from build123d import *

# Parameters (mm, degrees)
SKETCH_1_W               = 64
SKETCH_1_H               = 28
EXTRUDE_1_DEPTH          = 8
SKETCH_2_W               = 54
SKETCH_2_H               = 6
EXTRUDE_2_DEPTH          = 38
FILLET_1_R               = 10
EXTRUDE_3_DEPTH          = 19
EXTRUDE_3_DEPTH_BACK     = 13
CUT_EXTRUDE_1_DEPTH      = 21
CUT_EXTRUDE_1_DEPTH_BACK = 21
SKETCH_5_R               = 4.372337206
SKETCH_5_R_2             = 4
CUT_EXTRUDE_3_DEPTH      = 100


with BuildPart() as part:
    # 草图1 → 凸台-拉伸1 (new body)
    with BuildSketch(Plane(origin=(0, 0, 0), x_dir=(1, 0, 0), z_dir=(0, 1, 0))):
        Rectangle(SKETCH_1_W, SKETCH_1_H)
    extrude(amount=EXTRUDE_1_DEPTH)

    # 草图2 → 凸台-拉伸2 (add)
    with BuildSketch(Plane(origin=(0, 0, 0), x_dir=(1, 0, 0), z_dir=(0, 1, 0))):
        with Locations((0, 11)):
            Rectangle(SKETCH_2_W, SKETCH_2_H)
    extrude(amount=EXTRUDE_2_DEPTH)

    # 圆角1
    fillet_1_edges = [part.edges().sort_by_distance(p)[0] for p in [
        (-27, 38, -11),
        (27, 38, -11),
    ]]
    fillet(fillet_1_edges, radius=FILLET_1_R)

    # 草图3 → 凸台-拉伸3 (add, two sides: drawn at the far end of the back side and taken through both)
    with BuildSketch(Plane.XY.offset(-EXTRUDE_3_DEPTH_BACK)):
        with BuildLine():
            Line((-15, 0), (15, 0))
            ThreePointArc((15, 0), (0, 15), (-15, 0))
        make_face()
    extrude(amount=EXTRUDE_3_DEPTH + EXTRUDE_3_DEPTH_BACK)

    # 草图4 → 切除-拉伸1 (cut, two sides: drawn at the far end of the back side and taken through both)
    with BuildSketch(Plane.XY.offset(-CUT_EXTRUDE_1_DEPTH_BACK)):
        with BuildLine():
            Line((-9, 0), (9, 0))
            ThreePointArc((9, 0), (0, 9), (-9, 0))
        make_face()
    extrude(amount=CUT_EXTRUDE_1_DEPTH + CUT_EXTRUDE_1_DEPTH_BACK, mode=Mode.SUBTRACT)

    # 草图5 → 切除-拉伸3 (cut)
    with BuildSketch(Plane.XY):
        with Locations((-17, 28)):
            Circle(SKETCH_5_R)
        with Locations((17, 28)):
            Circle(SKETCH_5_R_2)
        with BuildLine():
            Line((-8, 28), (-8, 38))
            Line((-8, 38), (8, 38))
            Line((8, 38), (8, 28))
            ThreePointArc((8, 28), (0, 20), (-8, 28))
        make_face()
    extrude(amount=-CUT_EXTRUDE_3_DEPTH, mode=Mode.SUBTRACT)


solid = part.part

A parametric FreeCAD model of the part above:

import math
import FreeCAD as App
import Part
import Sketcher

V = App.Vector


def edges_at(feature, points):
    """Names of the edges that pass closest to the given points."""
    edges = feature.Shape.Edges
    near = lambda p: min(range(len(edges)), key=lambda i: edges[i].distToShape(Part.Vertex(*p))[0])
    return sorted({f"Edge{near(p) + 1}" for p in points})


def add_polygon(sketch, points):
    """Adds a closed chain of lines whose ends are joined by coincident constraints."""
    first, n = sketch.GeometryCount, len(points)
    for a, b in zip(points, points[1:] + points[:1]):
        sketch.addGeometry(Part.LineSegment(App.Vector(*a, 0), App.Vector(*b, 0)), False)
    for i in range(n):
        sketch.addConstraint(Sketcher.Constraint("Coincident", first + i, 2, first + (i + 1) % n, 1))

doc = App.newDocument("Part")
body = doc.addObject("PartDesign::Body", "Body")

sketch1 = body.newObject("Sketcher::SketchObject", "Sketch")
sketch1.AttachmentSupport = (doc.getObject("XZ_Plane"), [""])
sketch1.MapMode = "FlatFace"
add_polygon(sketch1, [(-32, -14), (-32, 14), (32, 14), (32, -14)])
sketch1.addConstraint(Sketcher.Constraint("Vertical", 0))
sketch1.addConstraint(Sketcher.Constraint("Horizontal", 1))
sketch1.addConstraint(Sketcher.Constraint("Vertical", 2))
sketch1.addConstraint(Sketcher.Constraint("Horizontal", 3))
sketch1.addConstraint(Sketcher.Constraint("Symmetric", 0, 2, 2, 2, -1, 1))
sketch1.addConstraint(Sketcher.Constraint("DistanceX", 1, 1, 1, 2, 64.0))
sketch1.addConstraint(Sketcher.Constraint("DistanceY", 0, 1, 0, 2, 28.0))
pad1 = body.newObject("PartDesign::Pad", "Pad")
pad1.Profile = sketch1
pad1.Length = 8
pad1.Reversed = True

sketch2 = body.newObject("Sketcher::SketchObject", "Sketch001")
sketch2.AttachmentSupport = (doc.getObject("XZ_Plane"), [""])
sketch2.MapMode = "FlatFace"
add_polygon(sketch2, [(-27, -14), (-27, -8), (27, -8), (27, -14)])
sketch2.addConstraint(Sketcher.Constraint("Vertical", 0))
sketch2.addConstraint(Sketcher.Constraint("Horizontal", 1))
sketch2.addConstraint(Sketcher.Constraint("Vertical", 2))
sketch2.addConstraint(Sketcher.Constraint("Horizontal", 3))
sketch2.addConstraint(Sketcher.Constraint("DistanceX", 1, 1, 1, 2, 54.0))
sketch2.addConstraint(Sketcher.Constraint("DistanceY", 0, 1, 0, 2, 6.0))
sketch2.addConstraint(Sketcher.Constraint("DistanceX", 0, 2, -1, 1, 27.0))
sketch2.addConstraint(Sketcher.Constraint("DistanceY", 0, 2, -1, 1, 8.0))
pad2 = body.newObject("PartDesign::Pad", "Pad001")
pad2.Profile = sketch2
pad2.Length = 38
pad2.Reversed = True
doc.recompute()

fillet = body.newObject("PartDesign::Fillet", "Fillet")
fillet.Base = (pad2, edges_at(pad2, [(-27, 38, -11), (27, 38, -11)]))
fillet.Radius = 10

sketch3 = body.newObject("Sketcher::SketchObject", "Sketch002")
sketch3.AttachmentSupport = (doc.getObject("XY_Plane"), [""])
sketch3.MapMode = "FlatFace"
sketch3.addGeometry(Part.LineSegment(V(-15, 0, 0), V(15, 0, 0)), False)
sketch3.addGeometry(Part.ArcOfCircle(Part.Circle(V(0, 0, 0), V(0, 0, 1), 15), math.radians(0), math.radians(180)), False)
sketch3.addConstraint(Sketcher.Constraint("Coincident", 0, 1, 1, 2))
sketch3.addConstraint(Sketcher.Constraint("Coincident", 1, 1, 0, 2))
sketch3.addConstraint(Sketcher.Constraint("Horizontal", 0))
sketch3.addConstraint(Sketcher.Constraint("Coincident", 1, 3, -1, 1))
sketch3.addConstraint(Sketcher.Constraint("PointOnObject", 0, 1, -1))
sketch3.addConstraint(Sketcher.Constraint("Radius", 1, 15.0))
pad3 = body.newObject("PartDesign::Pad", "Pad002")
pad3.Profile = sketch3
pad3.Type = "TwoLengths"
pad3.Length = 19
pad3.Length2 = 13

sketch4 = body.newObject("Sketcher::SketchObject", "Sketch003")
sketch4.AttachmentSupport = (doc.getObject("XY_Plane"), [""])
sketch4.MapMode = "FlatFace"
sketch4.addGeometry(Part.LineSegment(V(-9, 0, 0), V(9, 0, 0)), False)
sketch4.addGeometry(Part.ArcOfCircle(Part.Circle(V(0, 0, 0), V(0, 0, 1), 9), math.radians(0), math.radians(180)), False)
sketch4.addConstraint(Sketcher.Constraint("Coincident", 0, 1, 1, 2))
sketch4.addConstraint(Sketcher.Constraint("Coincident", 1, 1, 0, 2))
sketch4.addConstraint(Sketcher.Constraint("Horizontal", 0))
sketch4.addConstraint(Sketcher.Constraint("Coincident", 1, 3, -1, 1))
sketch4.addConstraint(Sketcher.Constraint("PointOnObject", 0, 1, -1))
sketch4.addConstraint(Sketcher.Constraint("Radius", 1, 9.0))
pocket1 = body.newObject("PartDesign::Pocket", "Pocket")
pocket1.Profile = sketch4
pocket1.Type = "ThroughAll"
pocket1.Midplane = True

sketch5 = body.newObject("Sketcher::SketchObject", "Sketch004")
sketch5.AttachmentSupport = (doc.getObject("XY_Plane"), [""])
sketch5.MapMode = "FlatFace"
sketch5.addGeometry(Part.Circle(V(-17, 28, 0), V(0, 0, 1), 4.372337), False)
sketch5.addGeometry(Part.Circle(V(17, 28, 0), V(0, 0, 1), 4), False)
sketch5.addGeometry(Part.LineSegment(V(-8, 38, 0), V(-8, 28, 0)), False)
sketch5.addGeometry(Part.ArcOfCircle(Part.Circle(V(0, 28, 0), V(0, 0, 1), 8), math.radians(180), math.radians(360)), False)
sketch5.addGeometry(Part.LineSegment(V(8, 28, 0), V(8, 38, 0)), False)
sketch5.addGeometry(Part.LineSegment(V(8, 38, 0), V(-8, 38, 0)), False)
sketch5.addConstraint(Sketcher.Constraint("Tangent", 2, 2, 3, 1))
sketch5.addConstraint(Sketcher.Constraint("Tangent", 3, 2, 4, 1))
sketch5.addConstraint(Sketcher.Constraint("Coincident", 4, 2, 5, 1))
sketch5.addConstraint(Sketcher.Constraint("Coincident", 5, 2, 2, 1))
sketch5.addConstraint(Sketcher.Constraint("Vertical", 2))
sketch5.addConstraint(Sketcher.Constraint("Vertical", 4))
sketch5.addConstraint(Sketcher.Constraint("Horizontal", 5))
sketch5.addConstraint(Sketcher.Constraint("Symmetric", 0, 3, 1, 3, -2))
sketch5.addConstraint(Sketcher.Constraint("PointOnObject", 3, 3, -2))
sketch5.addConstraint(Sketcher.Constraint("Horizontal", 1, 3, 3, 3))
sketch5.addConstraint(Sketcher.Constraint("Diameter", 1, 8.0))
sketch5.addConstraint(Sketcher.Constraint("Radius", 3, 8.0))
sketch5.addConstraint(Sketcher.Constraint("DistanceY", 2, 2, 2, 1, 10.0))
sketch5.addConstraint(Sketcher.Constraint("DistanceX", 0, 3, -1, 1, 17.0))
sketch5.addConstraint(Sketcher.Constraint("DistanceY", -1, 1, 0, 3, 28.0))
sketch5.addConstraint(Sketcher.Constraint("Diameter", 0, 8.744674))
pocket2 = body.newObject("PartDesign::Pocket", "Pocket001")
pocket2.Profile = sketch5
pocket2.Length = 100

doc.recompute()
